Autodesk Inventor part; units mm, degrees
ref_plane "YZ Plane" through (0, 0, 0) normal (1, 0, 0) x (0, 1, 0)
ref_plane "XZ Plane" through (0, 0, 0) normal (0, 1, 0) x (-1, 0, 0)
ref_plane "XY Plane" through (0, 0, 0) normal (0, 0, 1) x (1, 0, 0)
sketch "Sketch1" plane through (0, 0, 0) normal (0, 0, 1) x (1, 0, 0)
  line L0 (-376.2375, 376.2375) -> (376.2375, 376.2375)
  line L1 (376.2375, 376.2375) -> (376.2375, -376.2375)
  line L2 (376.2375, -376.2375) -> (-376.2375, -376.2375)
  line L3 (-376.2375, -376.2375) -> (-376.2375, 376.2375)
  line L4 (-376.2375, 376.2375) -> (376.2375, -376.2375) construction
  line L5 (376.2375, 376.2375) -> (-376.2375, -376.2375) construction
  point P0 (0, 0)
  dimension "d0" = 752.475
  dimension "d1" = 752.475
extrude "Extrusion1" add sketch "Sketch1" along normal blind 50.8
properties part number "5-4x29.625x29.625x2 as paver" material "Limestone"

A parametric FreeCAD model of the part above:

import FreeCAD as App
import Part
import Sketcher

V = App.Vector
Q = App.Units.Quantity

doc = App.newDocument("Part")
body = doc.addObject("PartDesign::Body", "Body")

# Sketch on XY plane
sketch1 = body.newObject("Sketcher::SketchObject", "Sketch")
sketch1.AttachmentSupport = (doc.getObject("XY_Plane"), [""])
sketch1.MapMode = "FlatFace"
sketch1.addGeometry([
    Part.LineSegment(V(376, 376, 0), V(-376, 376, 0)),
    Part.LineSegment(V(-376, 376, 0), V(-376, -376, 0)),
    Part.LineSegment(V(-376, -376, 0), V(376, -376, 0)),
    Part.LineSegment(V(376, -376, 0), V(376, 376, 0)),
], False)
sketch1.addConstraint([
    Sketcher.Constraint("Coincident", 0, 2, 1, 1),
    Sketcher.Constraint("Coincident", 1, 2, 2, 1),
    Sketcher.Constraint("Coincident", 2, 2, 3, 1),
    Sketcher.Constraint("Coincident", 3, 2, 0, 1),
    Sketcher.Constraint("Horizontal", 0),
    Sketcher.Constraint("Vertical", 1),
    Sketcher.Constraint("Horizontal", 2),
    Sketcher.Constraint("Vertical", 3),
    Sketcher.Constraint("Symmetric", 0, 2, 2, 2, -1, 1),
    Sketcher.Constraint("Equal", 2, 1),
    Sketcher.Constraint("DistanceX", 0, 2, 0, 1, Q("29.625 in")),
])
pad1 = body.newObject("PartDesign::Pad", "Pad")
pad1.Profile = sketch1
pad1.Length = Q("2 in")

doc.recompute()
